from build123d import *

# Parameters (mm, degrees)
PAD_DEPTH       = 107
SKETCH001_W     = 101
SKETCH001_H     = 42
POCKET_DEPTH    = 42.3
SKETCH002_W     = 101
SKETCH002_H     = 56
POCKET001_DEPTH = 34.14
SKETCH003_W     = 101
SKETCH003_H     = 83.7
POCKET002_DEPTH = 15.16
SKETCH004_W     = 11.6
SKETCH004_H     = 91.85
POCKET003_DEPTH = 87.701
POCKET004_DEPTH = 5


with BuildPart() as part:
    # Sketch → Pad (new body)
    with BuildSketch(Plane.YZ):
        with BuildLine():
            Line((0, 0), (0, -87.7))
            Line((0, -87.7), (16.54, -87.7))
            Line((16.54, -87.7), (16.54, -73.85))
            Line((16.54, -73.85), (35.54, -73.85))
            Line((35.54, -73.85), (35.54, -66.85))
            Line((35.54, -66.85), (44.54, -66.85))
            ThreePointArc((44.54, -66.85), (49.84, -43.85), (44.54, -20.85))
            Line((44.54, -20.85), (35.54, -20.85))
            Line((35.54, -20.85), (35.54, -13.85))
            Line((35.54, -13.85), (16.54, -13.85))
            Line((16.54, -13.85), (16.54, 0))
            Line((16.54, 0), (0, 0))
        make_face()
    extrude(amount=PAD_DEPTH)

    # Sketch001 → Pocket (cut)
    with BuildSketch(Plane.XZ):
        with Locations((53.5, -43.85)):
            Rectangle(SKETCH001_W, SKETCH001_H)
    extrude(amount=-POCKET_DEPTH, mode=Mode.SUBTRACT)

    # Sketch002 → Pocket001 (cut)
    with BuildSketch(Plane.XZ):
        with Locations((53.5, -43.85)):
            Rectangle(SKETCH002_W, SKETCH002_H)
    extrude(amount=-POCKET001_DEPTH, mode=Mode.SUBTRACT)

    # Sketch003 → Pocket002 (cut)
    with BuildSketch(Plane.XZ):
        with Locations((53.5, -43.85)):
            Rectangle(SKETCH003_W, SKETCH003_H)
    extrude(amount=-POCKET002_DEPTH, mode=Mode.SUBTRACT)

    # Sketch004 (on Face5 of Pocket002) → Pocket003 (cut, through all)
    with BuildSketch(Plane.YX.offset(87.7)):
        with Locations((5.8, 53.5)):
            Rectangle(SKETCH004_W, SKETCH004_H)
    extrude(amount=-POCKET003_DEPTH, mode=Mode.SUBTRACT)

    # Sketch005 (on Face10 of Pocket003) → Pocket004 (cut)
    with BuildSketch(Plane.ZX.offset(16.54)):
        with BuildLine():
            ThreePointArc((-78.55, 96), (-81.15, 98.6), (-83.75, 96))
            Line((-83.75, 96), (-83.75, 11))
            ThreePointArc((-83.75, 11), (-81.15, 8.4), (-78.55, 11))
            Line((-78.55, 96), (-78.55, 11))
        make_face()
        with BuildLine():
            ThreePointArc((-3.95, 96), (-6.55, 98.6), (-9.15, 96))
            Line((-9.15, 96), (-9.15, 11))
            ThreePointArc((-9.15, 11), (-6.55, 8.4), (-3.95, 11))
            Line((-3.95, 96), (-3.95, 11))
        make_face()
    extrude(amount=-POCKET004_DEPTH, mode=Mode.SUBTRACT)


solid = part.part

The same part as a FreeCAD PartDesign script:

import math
import FreeCAD as App
import Part
import Sketcher
from FreeCAD import Vector
Q = App.Units.Quantity


def add_polygon(sketch, points):
    """Adds a closed chain of lines whose ends are joined by coincident constraints."""
    first, n = sketch.GeometryCount, len(points)
    for a, b in zip(points, points[1:] + points[:1]):
        sketch.addGeometry(Part.LineSegment(App.Vector(*a, 0), App.Vector(*b, 0)), False)
    for i in range(n):
        sketch.addConstraint(Sketcher.Constraint("Coincident", first + i, 2, first + (i + 1) % n, 1))

doc = App.newDocument("Part")
body = doc.addObject("PartDesign::Body", "Body")

# Sketch on YZ plane
sketch1 = body.newObject("Sketcher::SketchObject", "Sketch")
sketch1.AttachmentSupport = (doc.getObject("YZ_Plane"), [""])
sketch1.MapMode = "FlatFace"
sketch1.addGeometry([
    Part.LineSegment(Vector(0, 0, 0), Vector(0, -87.7, 0)),  # 0
    Part.LineSegment(Vector(0, -87.7, 0), Vector(16.54, -87.7, 0)),  # 1
    Part.LineSegment(Vector(16.54, -87.7, 0), Vector(16.54, -73.85, 0)),  # 2
    Part.LineSegment(Vector(16.54, -73.85, 0), Vector(35.54, -73.85, 0)),  # 3
    Part.LineSegment(Vector(35.54, -73.85, 0), Vector(35.54, -66.85, 0)),  # 4
    Part.LineSegment(Vector(35.54, -66.85, 0), Vector(44.54, -66.85, 0)),  # 5
    Part.ArcOfCircle(Part.Circle(Vector(-2.71566, -43.85, 0), Vector(0, 0, 1), 52.55566), math.radians(-25.952844), math.radians(25.952844)),  # 6
    Part.LineSegment(Vector(44.54, -20.85, 0), Vector(35.54, -20.85, 0)),  # 7
    Part.LineSegment(Vector(35.54, -20.85, 0), Vector(35.54, -13.85, 0)),  # 8
    Part.LineSegment(Vector(35.54, -13.85, 0), Vector(16.54, -13.85, 0)),  # 9
    Part.LineSegment(Vector(16.54, -13.85, 0), Vector(16.54, 0, 0)),  # 10
    Part.LineSegment(Vector(16.54, 0, 0), Vector(0, 0, 0)),  # 11
], False)
sketch1.addConstraint([
    Sketcher.Constraint("Coincident", 0, 2, 1, 1),
    Sketcher.Constraint("Coincident", 1, 2, 2, 1),
    Sketcher.Constraint("Coincident", 2, 2, 3, 1),
    Sketcher.Constraint("Coincident", 3, 2, 4, 1),
    Sketcher.Constraint("Coincident", 4, 2, 5, 1),
    Sketcher.Constraint("Coincident", 5, 2, 6, 1),
    Sketcher.Constraint("Coincident", 6, 2, 7, 1),
    Sketcher.Constraint("Coincident", 7, 2, 8, 1),
    Sketcher.Constraint("Coincident", 8, 2, 9, 1),
    Sketcher.Constraint("Coincident", 9, 2, 10, 1),
    Sketcher.Constraint("Coincident", 10, 2, 11, 1),
    Sketcher.Constraint("Coincident", 11, 2, 0, 1),
    Sketcher.Constraint("Vertical", 0),
    Sketcher.Constraint("Horizontal", 1),
    Sketcher.Constraint("Vertical", 2),
    Sketcher.Constraint("Horizontal", 3),
    Sketcher.Constraint("Vertical", 4),
    Sketcher.Constraint("Horizontal", 5),
    Sketcher.Constraint("Horizontal", 7),
    Sketcher.Constraint("Vertical", 8),
    Sketcher.Constraint("Horizontal", 9),
    Sketcher.Constraint("Vertical", 10),
    Sketcher.Constraint("Horizontal", 11),
    Sketcher.Constraint("Coincident", 11, 2, -1, 1),
    Sketcher.Constraint("Vertical", 5, 2, 6, 2),
    Sketcher.Constraint("Vertical", 4, 2, 7, 2),
    Sketcher.Constraint("Vertical", 2, 2, 9, 2),
    Sketcher.Constraint("Equal", 4, 8),
    Sketcher.Constraint("Equal", 2, 10),
    Sketcher.Constraint("DistanceX", 3, 1, 3, 2, Q("19 mm")),
    Sketcher.Constraint("DistanceX", 5, 1, 5, 2, Q("9 mm")),
    Sketcher.Constraint("DistanceY", 4, 1, 4, 2, Q("7 mm")),
    Sketcher.Constraint("DistanceY", 0, 2, 0, 1, Q("87.7 mm")),
    Sketcher.Constraint("DistanceY", 2, 2, 6, 3, Q("30 mm")),
    Sketcher.Constraint("DistanceX", 1, 1, 1, 2, Q("16.54 mm")),
    Sketcher.Constraint("Radius", 6, Q("52.55566 mm")),
])
pad1 = body.newObject("PartDesign::Pad", "Pad")
pad1.Profile = sketch1
pad1.Length = 107

# Sketch on XZ plane
sketch2 = body.newObject("Sketcher::SketchObject", "Sketch001")
sketch2.AttachmentSupport = (doc.getObject("XZ_Plane"), [""])
sketch2.MapMode = "FlatFace"
add_polygon(sketch2, [(3, -22.85), (3, -64.85), (104, -64.85), (104, -22.85)])  # lines 0-3
sketch2.addConstraint([
    Sketcher.Constraint("Vertical", 0),
    Sketcher.Constraint("Horizontal", 1),
    Sketcher.Constraint("Vertical", 2),
    Sketcher.Constraint("Horizontal", 3),
    Sketcher.Constraint("DistanceX", 1, 1, 1, 2, Q("101 mm")),
    Sketcher.Constraint("DistanceY", 0, 2, 0, 1, Q("42 mm")),
    Sketcher.Constraint("DistanceX", -1, 1, 0, 2, Q("3 mm")),
    Sketcher.Constraint("DistanceY", 0, 2, -1, 1, Q("64.85 mm")),
])
pocket1 = body.newObject("PartDesign::Pocket", "Pocket")
pocket1.Profile = sketch2
pocket1.Length = 42.3

# Sketch on XZ plane
sketch3 = body.newObject("Sketcher::SketchObject", "Sketch002")
sketch3.AttachmentSupport = (doc.getObject("XZ_Plane"), [""])
sketch3.MapMode = "FlatFace"
add_polygon(sketch3, [(3, -15.85), (3, -71.85), (104, -71.85), (104, -15.85)])  # lines 0-3
sketch3.addConstraint([
    Sketcher.Constraint("Vertical", 0),
    Sketcher.Constraint("Horizontal", 1),
    Sketcher.Constraint("Vertical", 2),
    Sketcher.Constraint("Horizontal", 3),
    Sketcher.Constraint("DistanceX", 1, 1, 1, 2, Q("101 mm")),
    Sketcher.Constraint("DistanceY", 0, 2, 0, 1, Q("56 mm")),
    Sketcher.Constraint("DistanceX", -1, 1, 0, 2, Q("3 mm")),
    Sketcher.Constraint("DistanceY", 0, 2, -1, 1, Q("71.85 mm")),
])
pocket2 = body.newObject("PartDesign::Pocket", "Pocket001")
pocket2.Profile = sketch3
pocket2.Length = 34.14

# Sketch on XZ plane
sketch4 = body.newObject("Sketcher::SketchObject", "Sketch003")
sketch4.AttachmentSupport = (doc.getObject("XZ_Plane"), [""])
sketch4.MapMode = "FlatFace"
add_polygon(sketch4, [(3, -2), (3, -85.7), (104, -85.7), (104, -2)])  # lines 0-3
sketch4.addConstraint([
    Sketcher.Constraint("Vertical", 0),
    Sketcher.Constraint("Horizontal", 1),
    Sketcher.Constraint("Vertical", 2),
    Sketcher.Constraint("Horizontal", 3),
    Sketcher.Constraint("DistanceX", 1, 1, 1, 2, Q("101 mm")),
    Sketcher.Constraint("DistanceY", 0, 2, 0, 1, Q("83.7 mm")),
    Sketcher.Constraint("DistanceX", -1, 1, 0, 2, Q("3 mm")),
    Sketcher.Constraint("DistanceY", 2, 2, -1, 1, Q("2 mm")),
])
pocket3 = body.newObject("PartDesign::Pocket", "Pocket002")
pocket3.Profile = sketch4
pocket3.Length = 15.16

# Sketch on XY plane
sketch5 = body.newObject("Sketcher::SketchObject", "Sketch004")
sketch5.AttachmentSupport = (doc.getObject("XY_Plane"), [""])
sketch5.MapMode = "FlatFace"
sketch5.AttachmentOffset = App.Placement(Vector(0, 0, -87.7), App.Rotation())
add_polygon(sketch5, [(99.425, 0), (7.575, 0), (7.575, 11.6), (99.425, 11.6)])  # lines 0-3
sketch5.addConstraint([
    Sketcher.Constraint("Horizontal", 0),
    Sketcher.Constraint("Vertical", 1),
    Sketcher.Constraint("Horizontal", 2),
    Sketcher.Constraint("Vertical", 3),
    Sketcher.Constraint("PointOnObject", 0, 2, -1),
    Sketcher.Constraint("DistanceY", 1, 1, 1, 2, Q("11.6 mm")),
    Sketcher.Constraint("DistanceX", 0, 2, 0, 1, Q("91.85 mm")),
    Sketcher.Constraint("DistanceX", -1, 1, 0, 2, Q("7.575 mm")),
])
pocket4 = body.newObject("PartDesign::Pocket", "Pocket003")
pocket4.Profile = sketch5
pocket4.Type = "ThroughAll"
pocket4.Reversed = True

# Sketch on XZ plane
sketch6 = body.newObject("Sketcher::SketchObject", "Sketch005")
sketch6.AttachmentSupport = (doc.getObject("XZ_Plane"), [""])
sketch6.MapMode = "FlatFace"
sketch6.AttachmentOffset = App.Placement(Vector(0, 0, -16.54), App.Rotation())
sketch6.addGeometry([
    Part.ArcOfCircle(Part.Circle(Vector(96, -81.15, 0), Vector(0, 0, 1), 2.6), math.radians(-90), math.radians(90)),  # 0
    Part.LineSegment(Vector(96, -83.75, 0), Vector(11, -83.75, 0)),  # 1
    Part.ArcOfCircle(Part.Circle(Vector(11, -81.15, 0), Vector(0, 0, 1), 2.6), math.radians(90), math.radians(270)),  # 2
    Part.LineSegment(Vector(11, -78.55, 0), Vector(96, -78.55, 0)),  # 3
    Part.ArcOfCircle(Part.Circle(Vector(96, -6.55, 0), Vector(0, 0, 1), 2.6), math.radians(-90), math.radians(90)),  # 4
    Part.LineSegment(Vector(96, -9.15, 0), Vector(11, -9.15, 0)),  # 5
    Part.ArcOfCircle(Part.Circle(Vector(11, -6.55, 0), Vector(0, 0, 1), 2.6), math.radians(90), math.radians(270)),  # 6
    Part.LineSegment(Vector(11, -3.95, 0), Vector(96, -3.95, 0)),  # 7
], False)
sketch6.addConstraint([
    Sketcher.Constraint("Tangent", 0, 1, 1, 1),
    Sketcher.Constraint("Tangent", 1, 2, 2, 2),
    Sketcher.Constraint("Tangent", 2, 1, 3, 1),
    Sketcher.Constraint("Tangent", 3, 2, 0, 2),
    Sketcher.Constraint("Tangent", 4, 1, 5, 1),
    Sketcher.Constraint("Tangent", 5, 2, 6, 2),
    Sketcher.Constraint("Tangent", 6, 1, 7, 1),
    Sketcher.Constraint("Tangent", 7, 2, 4, 2),
    Sketcher.Constraint("Horizontal", 1),
    Sketcher.Constraint("Horizontal", 3),
    Sketcher.Constraint("Horizontal", 5),
    Sketcher.Constraint("Horizontal", 7),
    Sketcher.Constraint("Equal", 2, 4),
    Sketcher.Constraint("Vertical", 0, 3, 4, 3),
    Sketcher.Constraint("Vertical", 2, 3, 6, 3),
    Sketcher.Constraint("Radius", 0, Q("2.6 mm")),
    Sketcher.Constraint("DistanceX", 1, 2, 1, 1, Q("85 mm")),
    Sketcher.Constraint("DistanceX", -1, 1, 0, 3, Q("96 mm")),
    Sketcher.Constraint("DistanceY", 2, 1, 6, 3, Q("72 mm")),
    Sketcher.Constraint("DistanceY", 0, 3, -1, 1, Q("81.15 mm")),
])
pocket5 = body.newObject("PartDesign::Pocket", "Pocket004")
pocket5.Profile = sketch6
pocket5.Length = 5
pocket5.Reversed = True

doc.recompute()
